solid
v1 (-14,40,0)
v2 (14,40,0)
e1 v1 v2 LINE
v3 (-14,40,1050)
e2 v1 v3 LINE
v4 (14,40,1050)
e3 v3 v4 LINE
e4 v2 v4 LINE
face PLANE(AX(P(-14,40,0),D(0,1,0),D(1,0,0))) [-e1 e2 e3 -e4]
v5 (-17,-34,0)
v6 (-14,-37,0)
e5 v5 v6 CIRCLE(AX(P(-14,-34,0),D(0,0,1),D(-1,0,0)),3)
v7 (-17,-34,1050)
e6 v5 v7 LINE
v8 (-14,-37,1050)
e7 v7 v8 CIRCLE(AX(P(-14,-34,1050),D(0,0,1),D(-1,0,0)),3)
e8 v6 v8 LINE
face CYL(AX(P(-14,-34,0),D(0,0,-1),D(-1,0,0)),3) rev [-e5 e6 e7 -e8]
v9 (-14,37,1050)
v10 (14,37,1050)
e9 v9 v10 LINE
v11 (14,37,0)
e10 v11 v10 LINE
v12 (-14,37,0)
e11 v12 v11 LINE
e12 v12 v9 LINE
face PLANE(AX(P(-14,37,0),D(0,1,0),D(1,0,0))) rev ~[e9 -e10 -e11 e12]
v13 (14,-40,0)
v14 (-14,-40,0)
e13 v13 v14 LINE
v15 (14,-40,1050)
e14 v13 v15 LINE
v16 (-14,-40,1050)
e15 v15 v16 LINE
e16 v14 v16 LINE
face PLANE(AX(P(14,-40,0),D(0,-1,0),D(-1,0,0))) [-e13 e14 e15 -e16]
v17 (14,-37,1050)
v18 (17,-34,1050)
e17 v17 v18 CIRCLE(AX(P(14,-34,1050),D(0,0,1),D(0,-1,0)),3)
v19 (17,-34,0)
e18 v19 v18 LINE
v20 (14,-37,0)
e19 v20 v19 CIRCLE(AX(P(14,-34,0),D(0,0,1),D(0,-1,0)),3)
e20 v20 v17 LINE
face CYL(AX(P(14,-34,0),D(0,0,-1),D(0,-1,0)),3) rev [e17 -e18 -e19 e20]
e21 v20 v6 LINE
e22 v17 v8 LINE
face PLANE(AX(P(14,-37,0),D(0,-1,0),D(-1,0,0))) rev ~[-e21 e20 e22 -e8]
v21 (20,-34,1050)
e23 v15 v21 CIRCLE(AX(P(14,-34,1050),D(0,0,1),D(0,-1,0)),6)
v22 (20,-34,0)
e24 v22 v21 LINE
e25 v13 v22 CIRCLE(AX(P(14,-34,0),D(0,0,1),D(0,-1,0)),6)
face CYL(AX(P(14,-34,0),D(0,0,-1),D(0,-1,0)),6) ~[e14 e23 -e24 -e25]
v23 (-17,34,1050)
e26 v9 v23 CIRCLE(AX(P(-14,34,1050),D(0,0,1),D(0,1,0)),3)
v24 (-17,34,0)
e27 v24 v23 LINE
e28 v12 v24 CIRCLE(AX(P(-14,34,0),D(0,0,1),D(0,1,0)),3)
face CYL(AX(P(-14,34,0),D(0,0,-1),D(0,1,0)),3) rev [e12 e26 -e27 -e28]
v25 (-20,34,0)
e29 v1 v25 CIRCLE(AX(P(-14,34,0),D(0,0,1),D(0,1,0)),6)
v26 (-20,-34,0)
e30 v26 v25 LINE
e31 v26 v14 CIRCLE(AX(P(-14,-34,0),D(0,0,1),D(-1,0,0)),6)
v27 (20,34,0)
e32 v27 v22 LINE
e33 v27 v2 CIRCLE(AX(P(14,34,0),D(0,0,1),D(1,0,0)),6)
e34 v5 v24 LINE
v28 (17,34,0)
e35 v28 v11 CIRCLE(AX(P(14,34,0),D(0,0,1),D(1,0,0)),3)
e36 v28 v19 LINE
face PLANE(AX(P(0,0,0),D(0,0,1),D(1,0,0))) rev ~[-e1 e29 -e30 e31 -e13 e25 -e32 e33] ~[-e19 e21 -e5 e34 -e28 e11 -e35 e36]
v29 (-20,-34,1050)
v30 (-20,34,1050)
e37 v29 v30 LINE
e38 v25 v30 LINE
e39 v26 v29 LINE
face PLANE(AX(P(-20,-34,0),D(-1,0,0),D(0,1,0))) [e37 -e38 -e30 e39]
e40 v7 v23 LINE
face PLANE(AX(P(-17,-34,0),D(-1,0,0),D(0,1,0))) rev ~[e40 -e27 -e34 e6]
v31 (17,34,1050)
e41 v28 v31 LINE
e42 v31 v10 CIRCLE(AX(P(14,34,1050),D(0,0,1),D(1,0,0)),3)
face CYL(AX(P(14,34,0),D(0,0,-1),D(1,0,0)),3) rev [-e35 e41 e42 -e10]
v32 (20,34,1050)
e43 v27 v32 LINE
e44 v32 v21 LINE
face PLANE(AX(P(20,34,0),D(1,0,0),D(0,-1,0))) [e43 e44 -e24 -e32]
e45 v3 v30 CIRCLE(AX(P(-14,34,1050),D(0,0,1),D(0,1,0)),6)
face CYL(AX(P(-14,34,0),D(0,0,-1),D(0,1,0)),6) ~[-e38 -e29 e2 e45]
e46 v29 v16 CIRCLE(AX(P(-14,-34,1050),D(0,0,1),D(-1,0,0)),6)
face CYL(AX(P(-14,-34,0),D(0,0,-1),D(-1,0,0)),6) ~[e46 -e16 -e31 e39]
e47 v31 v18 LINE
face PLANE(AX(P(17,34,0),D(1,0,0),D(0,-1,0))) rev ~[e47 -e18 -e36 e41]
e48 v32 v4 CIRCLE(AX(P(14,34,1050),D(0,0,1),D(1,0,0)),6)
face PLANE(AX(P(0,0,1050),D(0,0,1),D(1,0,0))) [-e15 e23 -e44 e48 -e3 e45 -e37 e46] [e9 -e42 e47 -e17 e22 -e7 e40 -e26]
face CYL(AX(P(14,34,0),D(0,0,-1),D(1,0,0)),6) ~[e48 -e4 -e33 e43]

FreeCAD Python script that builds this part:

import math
import FreeCAD as App
import Part
import Sketcher

V = App.Vector

doc = App.newDocument("Part")
body = doc.addObject("PartDesign::Body", "Body")

# Sketch on XY plane
sketch1 = body.newObject("Sketcher::SketchObject", "Sketch")
sketch1.AttachmentSupport = (doc.getObject("XY_Plane"), [""])
sketch1.MapMode = "FlatFace"
sketch1.addGeometry([
    Part.LineSegment(V(-20, 34, 0), V(-20, -34, 0)),  # 0
    Part.ArcOfCircle(Part.Circle(V(-14, -34, 0), V(0, 0, 1), 6), math.radians(180), math.radians(270)),  # 1
    Part.LineSegment(V(-14, -40, 0), V(14, -40, 0)),  # 2
    Part.ArcOfCircle(Part.Circle(V(14, -34, 0), V(0, 0, 1), 6), math.radians(-90), math.radians(0)),  # 3
    Part.LineSegment(V(20, -34, 0), V(20, 34, 0)),  # 4
    Part.ArcOfCircle(Part.Circle(V(14, 34, 0), V(0, 0, 1), 6), math.radians(0), math.radians(90)),  # 5
    Part.LineSegment(V(14, 40, 0), V(-14, 40, 0)),  # 6
    Part.ArcOfCircle(Part.Circle(V(-14, 34, 0), V(0, 0, 1), 6), math.radians(90), math.radians(180)),  # 7
    Part.ArcOfCircle(Part.Circle(V(-14, 34, 0), V(0, 0, 1), 3), math.radians(90), math.radians(180)),  # 8
    Part.LineSegment(V(-14, 37, 0), V(14, 37, 0)),  # 9
    Part.ArcOfCircle(Part.Circle(V(14, 34, 0), V(0, 0, 1), 3), math.radians(0), math.radians(90)),  # 10
    Part.LineSegment(V(17, 34, 0), V(17, -34, 0)),  # 11
    Part.ArcOfCircle(Part.Circle(V(14, -34, 0), V(0, 0, 1), 3), math.radians(-90), math.radians(0)),  # 12
    Part.LineSegment(V(14, -37, 0), V(-14, -37, 0)),  # 13
    Part.ArcOfCircle(Part.Circle(V(-14, -34, 0), V(0, 0, 1), 3), math.radians(180), math.radians(270)),  # 14
    Part.LineSegment(V(-17, -34, 0), V(-17, 34, 0)),  # 15
], False)
sketch1.addConstraint([
    Sketcher.Constraint("Tangent", 0, 2, 1, 1),
    Sketcher.Constraint("Tangent", 1, 2, 2, 1),
    Sketcher.Constraint("Tangent", 2, 2, 3, 1),
    Sketcher.Constraint("Tangent", 3, 2, 4, 1),
    Sketcher.Constraint("Tangent", 4, 2, 5, 1),
    Sketcher.Constraint("Tangent", 5, 2, 6, 1),
    Sketcher.Constraint("Tangent", 6, 2, 7, 1),
    Sketcher.Constraint("Tangent", 7, 2, 0, 1),
    Sketcher.Constraint("Tangent", 8, 1, 9, 1),
    Sketcher.Constraint("Tangent", 9, 2, 10, 2),
    Sketcher.Constraint("Tangent", 10, 1, 11, 1),
    Sketcher.Constraint("Tangent", 11, 2, 12, 2),
    Sketcher.Constraint("Tangent", 12, 1, 13, 1),
    Sketcher.Constraint("Tangent", 13, 2, 14, 2),
    Sketcher.Constraint("Tangent", 14, 1, 15, 1),
    Sketcher.Constraint("Tangent", 15, 2, 8, 2),
    Sketcher.Constraint("Vertical", 0),
    Sketcher.Constraint("Horizontal", 2),
    Sketcher.Constraint("Vertical", 4),
    Sketcher.Constraint("Horizontal", 6),
    Sketcher.Constraint("Horizontal", 9),
    Sketcher.Constraint("Vertical", 11),
    Sketcher.Constraint("Horizontal", 13),
    Sketcher.Constraint("Vertical", 15),
    Sketcher.Constraint("Coincident", 8, 3, 7, 3),
    Sketcher.Constraint("Coincident", 10, 3, 5, 3),
    Sketcher.Constraint("Coincident", 12, 3, 3, 3),
    Sketcher.Constraint("Equal", 1, 3),
    Sketcher.Constraint("Equal", 3, 5),
    Sketcher.Constraint("Equal", 5, 7),
    Sketcher.Constraint("Equal", 12, 14),
    Sketcher.Constraint("Symmetric", 1, 3, 5, 3, -1, 1),
    Sketcher.Constraint("Radius", 1, 6.0),
    Sketcher.Constraint("Radius", 8, 3.0),
    Sketcher.Constraint("DistanceX", 0, 2, -1, 1, 20.0),
    Sketcher.Constraint("DistanceY", 1, 2, -1, 1, 40.0),
])
pad1 = body.newObject("PartDesign::Pad", "Pad")
pad1.Profile = sketch1
pad1.Length = 1050

doc.recompute()
